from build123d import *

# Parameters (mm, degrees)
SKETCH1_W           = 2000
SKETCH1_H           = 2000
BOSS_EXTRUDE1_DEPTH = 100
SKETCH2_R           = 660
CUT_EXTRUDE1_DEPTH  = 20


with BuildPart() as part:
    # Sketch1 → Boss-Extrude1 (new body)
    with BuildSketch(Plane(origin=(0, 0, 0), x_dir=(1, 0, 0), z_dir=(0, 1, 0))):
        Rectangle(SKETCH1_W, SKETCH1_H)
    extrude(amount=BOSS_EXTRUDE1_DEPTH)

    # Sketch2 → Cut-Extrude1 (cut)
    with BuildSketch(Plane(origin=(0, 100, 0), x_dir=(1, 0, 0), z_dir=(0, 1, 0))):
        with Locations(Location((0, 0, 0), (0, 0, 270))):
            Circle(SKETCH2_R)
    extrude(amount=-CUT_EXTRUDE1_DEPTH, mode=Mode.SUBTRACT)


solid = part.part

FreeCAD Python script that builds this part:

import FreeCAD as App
import Part
import Sketcher

V = App.Vector

doc = App.newDocument("Part")
body = doc.addObject("PartDesign::Body", "Body")

sketch1 = doc.addObject("Sketcher::SketchObject", "Sketch")
body.addObject(sketch1)
sketch1.AttachmentSupport = (doc.XZ_Plane, [""])
sketch1.MapMode = "FlatFace"
sketch1.addGeometry(Part.LineSegment(V(-1000, -1000, 0), V(-1000, 1000, 0)), False)
sketch1.addGeometry(Part.LineSegment(V(-1000, 1000, 0), V(1000, 1000, 0)), False)
sketch1.addGeometry(Part.LineSegment(V(1000, 1000, 0), V(1000, -1000, 0)), False)
sketch1.addGeometry(Part.LineSegment(V(1000, -1000, 0), V(-1000, -1000, 0)), False)
sketch1.addConstraint(Sketcher.Constraint("Coincident", 0, 2, 1, 1))
sketch1.addConstraint(Sketcher.Constraint("Coincident", 1, 2, 2, 1))
sketch1.addConstraint(Sketcher.Constraint("Coincident", 2, 2, 3, 1))
sketch1.addConstraint(Sketcher.Constraint("Coincident", 3, 2, 0, 1))
sketch1.addConstraint(Sketcher.Constraint("Vertical", 0))
sketch1.addConstraint(Sketcher.Constraint("Horizontal", 1))
sketch1.addConstraint(Sketcher.Constraint("Vertical", 2))
sketch1.addConstraint(Sketcher.Constraint("Horizontal", 3))
sketch1.addConstraint(Sketcher.Constraint("Symmetric", 0, 2, 2, 2, -1, 1))
sketch1.addConstraint(Sketcher.Constraint("Equal", 3, 0))
sketch1.addConstraint(Sketcher.Constraint("DistanceX", 1, 1, 1, 2, 2000.0))
pad1 = doc.addObject("PartDesign::Pad", "Pad")
body.addObject(pad1)
pad1.Profile = sketch1
pad1.Length = 100
pad1.Reversed = True

sketch2 = doc.addObject("Sketcher::SketchObject", "Sketch001")
body.addObject(sketch2)
sketch2.AttachmentSupport = (doc.XZ_Plane, [""])
sketch2.MapMode = "FlatFace"
sketch2.AttachmentOffset = App.Placement(V(0, 0, -100), App.Rotation())
sketch2.addGeometry(Part.Circle(V(0, 0, 0), V(0, 0, 1), 660), False)
sketch2.addConstraint(Sketcher.Constraint("Coincident", 0, 3, -1, 1))
sketch2.addConstraint(Sketcher.Constraint("Diameter", 0, 1320.0))
pocket1 = doc.addObject("PartDesign::Pocket", "Pocket")
body.addObject(pocket1)
pocket1.Profile = sketch2
pocket1.Length = 20
pocket1.Reversed = True

doc.recompute()
